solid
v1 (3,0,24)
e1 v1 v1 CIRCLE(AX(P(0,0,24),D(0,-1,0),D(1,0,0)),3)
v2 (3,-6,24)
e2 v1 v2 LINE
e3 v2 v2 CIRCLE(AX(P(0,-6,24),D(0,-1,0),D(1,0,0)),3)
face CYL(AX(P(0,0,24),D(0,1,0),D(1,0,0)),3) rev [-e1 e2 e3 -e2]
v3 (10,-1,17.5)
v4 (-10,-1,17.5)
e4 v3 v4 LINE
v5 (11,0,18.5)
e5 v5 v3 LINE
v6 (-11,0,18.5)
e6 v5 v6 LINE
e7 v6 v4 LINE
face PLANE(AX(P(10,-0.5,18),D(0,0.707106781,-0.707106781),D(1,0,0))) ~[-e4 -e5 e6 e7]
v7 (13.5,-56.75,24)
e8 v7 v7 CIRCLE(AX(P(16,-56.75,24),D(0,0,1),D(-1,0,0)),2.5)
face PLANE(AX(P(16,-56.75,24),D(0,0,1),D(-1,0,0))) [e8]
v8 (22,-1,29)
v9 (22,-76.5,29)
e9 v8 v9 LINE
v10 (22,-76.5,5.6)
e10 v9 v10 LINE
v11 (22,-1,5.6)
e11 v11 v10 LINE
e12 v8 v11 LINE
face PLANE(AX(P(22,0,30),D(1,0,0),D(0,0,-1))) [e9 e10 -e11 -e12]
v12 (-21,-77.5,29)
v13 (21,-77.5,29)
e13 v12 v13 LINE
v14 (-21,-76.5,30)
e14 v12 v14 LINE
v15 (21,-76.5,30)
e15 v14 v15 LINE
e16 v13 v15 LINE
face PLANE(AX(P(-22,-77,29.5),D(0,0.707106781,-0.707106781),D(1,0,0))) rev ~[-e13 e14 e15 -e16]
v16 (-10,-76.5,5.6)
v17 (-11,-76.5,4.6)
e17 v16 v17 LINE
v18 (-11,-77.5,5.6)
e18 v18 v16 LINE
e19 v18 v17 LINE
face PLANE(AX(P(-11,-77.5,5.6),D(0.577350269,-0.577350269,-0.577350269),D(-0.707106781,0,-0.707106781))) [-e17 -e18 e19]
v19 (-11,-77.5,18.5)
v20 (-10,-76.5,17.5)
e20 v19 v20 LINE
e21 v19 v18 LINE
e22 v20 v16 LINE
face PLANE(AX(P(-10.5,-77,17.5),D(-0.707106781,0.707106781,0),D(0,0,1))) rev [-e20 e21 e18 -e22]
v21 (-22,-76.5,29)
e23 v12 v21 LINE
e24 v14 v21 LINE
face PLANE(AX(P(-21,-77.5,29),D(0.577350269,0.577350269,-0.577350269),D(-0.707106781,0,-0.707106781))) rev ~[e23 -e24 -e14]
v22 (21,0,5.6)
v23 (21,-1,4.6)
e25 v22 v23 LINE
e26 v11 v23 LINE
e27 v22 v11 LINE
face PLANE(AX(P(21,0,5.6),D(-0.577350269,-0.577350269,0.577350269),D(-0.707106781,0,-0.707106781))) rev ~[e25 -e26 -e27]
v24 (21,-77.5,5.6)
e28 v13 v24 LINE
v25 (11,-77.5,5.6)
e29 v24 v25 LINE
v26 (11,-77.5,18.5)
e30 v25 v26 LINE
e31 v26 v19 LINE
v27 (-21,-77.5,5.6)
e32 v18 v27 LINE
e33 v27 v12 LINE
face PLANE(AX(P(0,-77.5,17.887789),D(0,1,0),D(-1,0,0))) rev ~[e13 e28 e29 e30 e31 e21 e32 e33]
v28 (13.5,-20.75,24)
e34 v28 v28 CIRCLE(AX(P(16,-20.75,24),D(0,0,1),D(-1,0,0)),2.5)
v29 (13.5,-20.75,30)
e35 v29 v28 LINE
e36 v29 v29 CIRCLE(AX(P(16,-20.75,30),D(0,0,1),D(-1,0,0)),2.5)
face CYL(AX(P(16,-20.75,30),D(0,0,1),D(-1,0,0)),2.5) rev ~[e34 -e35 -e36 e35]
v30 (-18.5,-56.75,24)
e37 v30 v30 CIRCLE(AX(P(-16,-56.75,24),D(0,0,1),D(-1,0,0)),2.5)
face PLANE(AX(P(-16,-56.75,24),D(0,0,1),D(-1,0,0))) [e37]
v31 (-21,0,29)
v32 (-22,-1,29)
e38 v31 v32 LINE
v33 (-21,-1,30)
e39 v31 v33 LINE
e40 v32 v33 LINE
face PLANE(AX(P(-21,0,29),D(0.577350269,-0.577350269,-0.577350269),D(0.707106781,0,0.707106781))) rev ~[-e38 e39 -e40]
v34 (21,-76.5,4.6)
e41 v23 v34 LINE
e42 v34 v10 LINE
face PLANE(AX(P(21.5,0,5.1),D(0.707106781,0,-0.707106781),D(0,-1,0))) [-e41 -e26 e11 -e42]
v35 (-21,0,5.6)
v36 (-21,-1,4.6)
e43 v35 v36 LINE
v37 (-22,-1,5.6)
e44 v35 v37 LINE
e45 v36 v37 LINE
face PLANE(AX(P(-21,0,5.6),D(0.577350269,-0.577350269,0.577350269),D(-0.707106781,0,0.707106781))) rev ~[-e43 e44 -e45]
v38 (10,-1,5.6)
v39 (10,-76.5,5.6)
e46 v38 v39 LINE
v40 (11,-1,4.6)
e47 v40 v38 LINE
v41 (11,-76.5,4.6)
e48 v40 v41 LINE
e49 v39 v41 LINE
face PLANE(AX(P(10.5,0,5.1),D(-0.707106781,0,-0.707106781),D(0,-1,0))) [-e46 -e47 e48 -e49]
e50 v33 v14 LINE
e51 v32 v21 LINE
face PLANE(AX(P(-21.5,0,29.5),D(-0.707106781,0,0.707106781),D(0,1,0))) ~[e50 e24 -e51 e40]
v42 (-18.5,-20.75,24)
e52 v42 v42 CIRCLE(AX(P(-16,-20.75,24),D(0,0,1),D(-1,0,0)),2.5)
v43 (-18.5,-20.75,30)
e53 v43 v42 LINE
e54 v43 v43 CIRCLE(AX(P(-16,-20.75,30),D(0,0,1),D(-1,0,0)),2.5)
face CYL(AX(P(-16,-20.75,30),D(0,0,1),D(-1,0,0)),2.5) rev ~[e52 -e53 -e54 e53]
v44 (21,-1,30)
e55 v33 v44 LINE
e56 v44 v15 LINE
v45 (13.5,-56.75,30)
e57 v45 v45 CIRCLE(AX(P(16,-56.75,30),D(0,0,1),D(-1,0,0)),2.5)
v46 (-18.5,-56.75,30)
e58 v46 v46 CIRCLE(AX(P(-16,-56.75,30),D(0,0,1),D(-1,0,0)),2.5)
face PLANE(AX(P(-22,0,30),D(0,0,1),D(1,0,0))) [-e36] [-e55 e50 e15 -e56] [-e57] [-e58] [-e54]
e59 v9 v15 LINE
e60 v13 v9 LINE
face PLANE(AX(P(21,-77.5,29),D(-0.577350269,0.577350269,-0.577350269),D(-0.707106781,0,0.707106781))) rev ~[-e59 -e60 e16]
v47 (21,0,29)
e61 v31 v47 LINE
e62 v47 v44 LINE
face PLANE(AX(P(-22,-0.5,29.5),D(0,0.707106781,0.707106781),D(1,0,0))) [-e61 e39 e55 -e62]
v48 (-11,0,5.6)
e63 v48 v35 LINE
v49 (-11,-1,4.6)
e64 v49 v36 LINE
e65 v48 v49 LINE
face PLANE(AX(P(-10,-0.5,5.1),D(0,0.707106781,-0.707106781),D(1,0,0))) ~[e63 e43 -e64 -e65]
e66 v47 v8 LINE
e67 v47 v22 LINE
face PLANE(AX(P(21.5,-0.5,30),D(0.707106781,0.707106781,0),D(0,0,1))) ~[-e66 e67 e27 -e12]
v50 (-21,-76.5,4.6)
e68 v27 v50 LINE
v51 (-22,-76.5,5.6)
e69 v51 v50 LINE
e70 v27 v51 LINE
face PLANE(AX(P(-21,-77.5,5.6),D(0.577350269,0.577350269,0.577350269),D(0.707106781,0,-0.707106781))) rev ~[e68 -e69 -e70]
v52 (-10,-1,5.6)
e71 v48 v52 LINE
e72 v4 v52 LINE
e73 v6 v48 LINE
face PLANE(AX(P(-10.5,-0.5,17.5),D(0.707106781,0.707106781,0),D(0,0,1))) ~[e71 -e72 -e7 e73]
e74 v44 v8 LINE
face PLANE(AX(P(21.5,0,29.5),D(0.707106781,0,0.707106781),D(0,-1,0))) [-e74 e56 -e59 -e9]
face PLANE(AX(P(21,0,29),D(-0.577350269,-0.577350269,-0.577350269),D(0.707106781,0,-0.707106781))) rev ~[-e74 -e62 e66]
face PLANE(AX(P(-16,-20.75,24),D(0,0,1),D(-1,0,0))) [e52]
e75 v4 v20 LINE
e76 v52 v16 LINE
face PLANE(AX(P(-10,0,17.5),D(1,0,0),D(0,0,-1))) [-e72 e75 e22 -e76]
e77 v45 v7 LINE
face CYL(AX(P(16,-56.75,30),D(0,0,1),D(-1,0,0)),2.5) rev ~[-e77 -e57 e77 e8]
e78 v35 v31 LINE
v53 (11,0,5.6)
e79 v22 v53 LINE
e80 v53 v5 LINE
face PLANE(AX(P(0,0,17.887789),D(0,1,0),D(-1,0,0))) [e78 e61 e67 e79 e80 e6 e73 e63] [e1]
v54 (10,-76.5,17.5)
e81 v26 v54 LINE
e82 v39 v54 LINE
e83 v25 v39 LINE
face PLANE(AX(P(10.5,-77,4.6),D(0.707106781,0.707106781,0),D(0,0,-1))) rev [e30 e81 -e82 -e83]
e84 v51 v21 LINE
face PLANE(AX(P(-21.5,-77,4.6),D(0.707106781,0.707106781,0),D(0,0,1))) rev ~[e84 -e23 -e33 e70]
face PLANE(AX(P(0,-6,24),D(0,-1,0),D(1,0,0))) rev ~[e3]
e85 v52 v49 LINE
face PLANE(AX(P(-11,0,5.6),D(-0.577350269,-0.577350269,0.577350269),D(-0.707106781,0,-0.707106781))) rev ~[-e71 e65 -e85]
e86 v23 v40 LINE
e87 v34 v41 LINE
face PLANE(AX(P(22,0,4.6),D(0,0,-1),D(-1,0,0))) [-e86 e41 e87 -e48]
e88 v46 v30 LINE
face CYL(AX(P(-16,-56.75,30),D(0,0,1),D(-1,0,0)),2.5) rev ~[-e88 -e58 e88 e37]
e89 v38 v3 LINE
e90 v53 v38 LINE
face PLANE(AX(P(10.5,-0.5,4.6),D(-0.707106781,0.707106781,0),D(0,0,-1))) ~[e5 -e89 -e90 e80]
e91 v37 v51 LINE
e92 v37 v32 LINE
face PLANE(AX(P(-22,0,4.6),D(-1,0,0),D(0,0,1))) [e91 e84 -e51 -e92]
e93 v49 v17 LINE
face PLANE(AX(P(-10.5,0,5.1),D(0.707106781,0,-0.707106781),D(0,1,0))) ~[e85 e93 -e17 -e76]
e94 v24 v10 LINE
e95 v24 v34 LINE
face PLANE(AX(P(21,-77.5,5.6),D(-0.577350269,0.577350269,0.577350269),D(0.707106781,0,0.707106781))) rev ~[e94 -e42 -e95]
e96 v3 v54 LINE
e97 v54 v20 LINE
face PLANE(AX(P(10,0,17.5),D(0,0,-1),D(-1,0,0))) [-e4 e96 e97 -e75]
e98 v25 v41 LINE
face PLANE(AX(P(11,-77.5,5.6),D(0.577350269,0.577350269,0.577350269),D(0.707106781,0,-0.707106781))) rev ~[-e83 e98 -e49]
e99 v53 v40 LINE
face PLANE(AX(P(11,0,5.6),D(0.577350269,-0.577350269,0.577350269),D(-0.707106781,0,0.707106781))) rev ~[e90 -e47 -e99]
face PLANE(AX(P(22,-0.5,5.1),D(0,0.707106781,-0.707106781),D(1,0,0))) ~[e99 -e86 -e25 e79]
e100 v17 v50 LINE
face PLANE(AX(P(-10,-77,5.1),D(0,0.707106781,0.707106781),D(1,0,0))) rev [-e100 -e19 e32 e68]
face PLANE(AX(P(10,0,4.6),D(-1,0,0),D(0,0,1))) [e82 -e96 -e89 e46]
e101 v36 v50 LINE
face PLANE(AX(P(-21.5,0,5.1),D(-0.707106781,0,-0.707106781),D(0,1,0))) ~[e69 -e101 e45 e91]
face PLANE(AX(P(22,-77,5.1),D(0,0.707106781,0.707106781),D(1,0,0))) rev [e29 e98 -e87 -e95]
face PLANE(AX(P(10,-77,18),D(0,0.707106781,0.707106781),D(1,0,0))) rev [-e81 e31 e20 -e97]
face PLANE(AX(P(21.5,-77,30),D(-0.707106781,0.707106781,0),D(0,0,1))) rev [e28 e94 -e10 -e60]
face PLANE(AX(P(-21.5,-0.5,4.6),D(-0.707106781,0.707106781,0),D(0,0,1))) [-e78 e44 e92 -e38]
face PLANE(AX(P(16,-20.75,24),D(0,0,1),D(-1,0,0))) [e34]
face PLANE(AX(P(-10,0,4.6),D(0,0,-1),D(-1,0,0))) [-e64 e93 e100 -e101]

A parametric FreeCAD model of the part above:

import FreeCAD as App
import Part
import Sketcher

V = App.Vector
Q = App.Units.Quantity


def edges_at(feature, points):
    """Names of the edges that pass closest to the given points."""
    edges = feature.Shape.Edges
    near = lambda p: min(range(len(edges)), key=lambda i: edges[i].distToShape(Part.Vertex(*p))[0])
    return sorted({f"Edge{near(p) + 1}" for p in points})

doc = App.newDocument("Part")
body = doc.addObject("PartDesign::Body", "Body")

# Sketch on XZ plane
sketch1 = body.newObject("Sketcher::SketchObject", "Sketch")
sketch1.AttachmentSupport = (doc.getObject("XZ_Plane"), [""])
sketch1.MapMode = "FlatFace"
sketch1.addGeometry(Part.LineSegment(V(22, 30, 0), V(-22, 30, 0)), False)
sketch1.addGeometry(Part.LineSegment(V(-22, 30, 0), V(-22, 4.6, 0)), False)
sketch1.addGeometry(Part.LineSegment(V(-22, 4.6, 0), V(-10, 4.6, 0)), False)
sketch1.addGeometry(Part.LineSegment(V(-10, 4.6, 0), V(-10, 17.5, 0)), False)
sketch1.addGeometry(Part.LineSegment(V(-10, 17.5, 0), V(10, 17.5, 0)), False)
sketch1.addGeometry(Part.LineSegment(V(10, 17.5, 0), V(10, 4.6, 0)), False)
sketch1.addGeometry(Part.LineSegment(V(10, 4.6, 0), V(22, 4.6, 0)), False)
sketch1.addGeometry(Part.LineSegment(V(22, 4.6, 0), V(22, 30, 0)), False)
sketch1.addConstraint(Sketcher.Constraint("Coincident", 0, 2, 1, 1))
sketch1.addConstraint(Sketcher.Constraint("Coincident", 1, 2, 2, 1))
sketch1.addConstraint(Sketcher.Constraint("Coincident", 2, 2, 3, 1))
sketch1.addConstraint(Sketcher.Constraint("Coincident", 3, 2, 4, 1))
sketch1.addConstraint(Sketcher.Constraint("Coincident", 4, 2, 5, 1))
sketch1.addConstraint(Sketcher.Constraint("Coincident", 5, 2, 6, 1))
sketch1.addConstraint(Sketcher.Constraint("Coincident", 6, 2, 7, 1))
sketch1.addConstraint(Sketcher.Constraint("Coincident", 7, 2, 0, 1))
sketch1.addConstraint(Sketcher.Constraint("Horizontal", 0))
sketch1.addConstraint(Sketcher.Constraint("Vertical", 1))
sketch1.addConstraint(Sketcher.Constraint("Horizontal", 2))
sketch1.addConstraint(Sketcher.Constraint("Vertical", 3))
sketch1.addConstraint(Sketcher.Constraint("Horizontal", 4))
sketch1.addConstraint(Sketcher.Constraint("Vertical", 5))
sketch1.addConstraint(Sketcher.Constraint("Horizontal", 6))
sketch1.addConstraint(Sketcher.Constraint("Vertical", 7))
sketch1.addConstraint(Sketcher.Constraint("Symmetric", 2, 2, 5, 2, -2))
sketch1.addConstraint(Sketcher.Constraint("Equal", 2, 6))
sketch1.addConstraint(Sketcher.Constraint("DistanceX", 0, 2, 0, 1, Q("44 mm")))
sketch1.addConstraint(Sketcher.Constraint("DistanceX", 2, 1, 2, 2, Q("12 mm")))
sketch1.addConstraint(Sketcher.Constraint("DistanceY", 1, 2, 1, 1, Q("25.4 mm")))
sketch1.addConstraint(Sketcher.Constraint("DistanceY", 3, 1, 3, 2, Q("12.9 mm")))
sketch1.addConstraint(Sketcher.Constraint("DistanceY", -1, 1, 0, 2, Q("30 mm")))
pad1 = body.newObject("PartDesign::Pad", "Pad")
pad1.Profile = sketch1
pad1.Length = 77.5

# Sketch on XY plane
sketch2 = body.newObject("Sketcher::SketchObject", "Sketch001")
sketch2.AttachmentSupport = (doc.getObject("XY_Plane"), [""])
sketch2.MapMode = "FlatFace"
sketch2.AttachmentOffset = App.Placement(V(0, 0, 30), App.Rotation())
sketch2.addGeometry(Part.Circle(V(16, -20.75, 0), V(0, 0, 1), 2.5), False)
sketch2.addGeometry(Part.Circle(V(-16, -20.75, 0), V(0, 0, 1), 2.5), False)
sketch2.addGeometry(Part.Circle(V(-16, -56.75, 0), V(0, 0, 1), 2.5), False)
sketch2.addGeometry(Part.Circle(V(16, -56.75, 0), V(0, 0, 1), 2.5), False)
sketch2.addConstraint(Sketcher.Constraint("Equal", 0, 1))
sketch2.addConstraint(Sketcher.Constraint("Equal", 1, 2))
sketch2.addConstraint(Sketcher.Constraint("Equal", 2, 3))
sketch2.addConstraint(Sketcher.Constraint("Symmetric", 0, 3, 1, 3, -2))
sketch2.addConstraint(Sketcher.Constraint("Symmetric", 2, 3, 3, 3, -2))
sketch2.addConstraint(Sketcher.Constraint("Vertical", 1, 3, 2, 3))
sketch2.addConstraint(Sketcher.Constraint("Diameter", 0, Q("5 mm")))
sketch2.addConstraint(Sketcher.Constraint("DistanceX", -1, 1, 0, 3, Q("16 mm")))
sketch2.addConstraint(Sketcher.Constraint("DistanceY", 2, 3, 1, 3, Q("36 mm")))
sketch2.addConstraint(Sketcher.Constraint("DistanceY", 0, 3, -1, 1, Q("20.75 mm")))
pocket1 = body.newObject("PartDesign::Pocket", "Pocket")
pocket1.Profile = sketch2
pocket1.Length = 6
doc.recompute()

chamfer = body.newObject("PartDesign::Chamfer", "Chamfer")
chamfer.Base = (pocket1, edges_at(pocket1, [
    (22, -38.75, 4.6),
    (22, -38.75, 30),
    (-22, -38.75, 30),
    (-22, -38.75, 4.6),
    (-10, -38.75, 4.6),
    (10, -38.75, 4.6),
    (-10, -77.5, 11.05),
    (0, -77.5, 17.5),
    (10, -77.5, 11.05),
    (16, -77.5, 4.6),
    (22, -77.5, 17.3),
    (0, -77.5, 30),
    (-22, -77.5, 17.3),
    (-10, 0, 11.05),
    (-16, 0, 4.6),
    (-22, 0, 17.3),
    (0, 0, 30),
    (22, 0, 17.3),
    (16, 0, 4.6),
    (10, 0, 11.05),
    (0, 0, 17.5),
    (-16, -77.5, 4.6),
]))
chamfer.Size = 1

# Sketch on XZ plane
sketch3 = body.newObject("Sketcher::SketchObject", "Sketch002")
sketch3.AttachmentSupport = (doc.getObject("XZ_Plane"), [""])
sketch3.MapMode = "FlatFace"
sketch3.addGeometry(Part.Circle(V(0, 24, 0), V(0, 0, 1), 3), False)
sketch3.addConstraint(Sketcher.Constraint("PointOnObject", 0, 3, -2))
sketch3.addConstraint(Sketcher.Constraint("Diameter", 0, Q("6 mm")))
sketch3.addConstraint(Sketcher.Constraint("DistanceY", -1, 1, 0, 3, Q("24 mm")))
pocket2 = body.newObject("PartDesign::Pocket", "Pocket001")
pocket2.Profile = sketch3
pocket2.Length = 6
pocket2.Reversed = True

doc.recompute()
